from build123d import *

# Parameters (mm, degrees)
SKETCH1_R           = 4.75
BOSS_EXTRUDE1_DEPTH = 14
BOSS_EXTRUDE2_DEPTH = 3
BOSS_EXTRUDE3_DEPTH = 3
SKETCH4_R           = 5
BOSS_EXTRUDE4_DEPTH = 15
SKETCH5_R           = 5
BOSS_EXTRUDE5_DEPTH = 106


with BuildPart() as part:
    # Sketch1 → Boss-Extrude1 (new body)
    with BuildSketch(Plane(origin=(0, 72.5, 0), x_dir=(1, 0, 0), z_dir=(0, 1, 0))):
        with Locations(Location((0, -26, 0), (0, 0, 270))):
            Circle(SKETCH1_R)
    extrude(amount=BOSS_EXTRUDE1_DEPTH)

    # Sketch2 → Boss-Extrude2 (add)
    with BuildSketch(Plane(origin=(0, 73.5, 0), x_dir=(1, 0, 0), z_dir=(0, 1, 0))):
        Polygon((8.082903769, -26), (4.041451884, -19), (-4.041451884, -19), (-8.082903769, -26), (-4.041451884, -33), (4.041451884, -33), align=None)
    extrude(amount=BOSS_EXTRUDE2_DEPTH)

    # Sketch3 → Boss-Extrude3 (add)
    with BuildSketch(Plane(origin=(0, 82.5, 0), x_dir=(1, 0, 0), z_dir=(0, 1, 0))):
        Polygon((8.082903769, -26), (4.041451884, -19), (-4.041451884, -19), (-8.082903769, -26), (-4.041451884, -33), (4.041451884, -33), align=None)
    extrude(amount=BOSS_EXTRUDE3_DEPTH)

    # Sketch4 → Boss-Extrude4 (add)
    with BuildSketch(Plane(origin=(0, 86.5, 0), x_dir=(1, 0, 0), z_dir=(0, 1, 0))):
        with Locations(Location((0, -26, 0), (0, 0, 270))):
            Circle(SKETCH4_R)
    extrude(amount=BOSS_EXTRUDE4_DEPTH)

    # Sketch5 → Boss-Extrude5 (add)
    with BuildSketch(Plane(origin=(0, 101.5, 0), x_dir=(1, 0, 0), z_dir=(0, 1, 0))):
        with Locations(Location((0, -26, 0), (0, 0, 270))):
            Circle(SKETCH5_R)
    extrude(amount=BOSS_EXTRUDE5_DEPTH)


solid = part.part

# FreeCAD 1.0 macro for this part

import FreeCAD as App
import Part
import Sketcher

V = App.Vector
Q = App.Units.Quantity

doc = App.newDocument("Part")
body = doc.addObject("PartDesign::Body", "Body")

# Sketch on XZ plane
sketch1 = body.newObject("Sketcher::SketchObject", "Sketch")
sketch1.AttachmentSupport = (doc.getObject("XZ_Plane"), [""])
sketch1.MapMode = "FlatFace"
sketch1.AttachmentOffset = App.Placement(V(0, 0, -72.5), App.Rotation())
sketch1.addGeometry(Part.Circle(V(0, 26, 0), V(0, 0, 1), 4.8), False)
sketch1.addConstraint([
    Sketcher.Constraint("PointOnObject", 0, 3, -2),
    Sketcher.Constraint("Diameter", 0, 9.5),
    Sketcher.Constraint("DistanceY", -1, 1, 0, 3, 26.0),
])
pad1 = body.newObject("PartDesign::Pad", "Pad")
pad1.Profile = sketch1
pad1.Length = 14
pad1.Reversed = True

# Sketch on XZ plane
sketch2 = body.newObject("Sketcher::SketchObject", "Sketch001")
sketch2.AttachmentSupport = (doc.getObject("XZ_Plane"), [""])
sketch2.MapMode = "FlatFace"
sketch2.AttachmentOffset = App.Placement(V(0, 0, -73.5), App.Rotation())
sketch2.addGeometry([
    Part.LineSegment(V(8, 26, 0), V(4, 19, 0)),  # 0
    Part.LineSegment(V(4, 19, 0), V(-4, 19, 0)),  # 1
    Part.LineSegment(V(-4, 19, 0), V(-8, 26, 0)),  # 2
    Part.LineSegment(V(-8, 26, 0), V(-4, 33, 0)),  # 3
    Part.LineSegment(V(-4, 33, 0), V(4, 33, 0)),  # 4
    Part.LineSegment(V(4, 33, 0), V(8, 26, 0)),  # 5
], False)
sketch2.addConstraint([
    Sketcher.Constraint("Coincident", 0, 2, 1, 1),
    Sketcher.Constraint("Coincident", 1, 2, 2, 1),
    Sketcher.Constraint("Coincident", 2, 2, 3, 1),
    Sketcher.Constraint("Coincident", 3, 2, 4, 1),
    Sketcher.Constraint("Coincident", 4, 2, 5, 1),
    Sketcher.Constraint("Coincident", 5, 2, 0, 1),
    Sketcher.Constraint("Horizontal", 1),
    Sketcher.Constraint("Horizontal", 4),
    Sketcher.Constraint("Symmetric", 2, 2, 5, 2, -2),
    Sketcher.Constraint("Parallel", 0, 3),
    Sketcher.Constraint("Parallel", 2, 5),
    Sketcher.Constraint("Vertical", 1, 2, 3, 2),
    Sketcher.Constraint("Vertical", 0, 2, 4, 2),
    Sketcher.Constraint("Angle", 0, Q("-120 deg")),
    Sketcher.Constraint("DistanceY", -1, 1, 0, 2, 19.0),
    Sketcher.Constraint("DistanceY", -1, 1, 2, 2, 26.0),
    Sketcher.Constraint("DistanceX", 1, 2, 1, 1, 8.082904),
])
pad2 = body.newObject("PartDesign::Pad", "Pad001")
pad2.Profile = sketch2
pad2.Length = 3
pad2.Reversed = True

# Sketch on XZ plane
sketch3 = body.newObject("Sketcher::SketchObject", "Sketch002")
sketch3.AttachmentSupport = (doc.getObject("XZ_Plane"), [""])
sketch3.MapMode = "FlatFace"
sketch3.AttachmentOffset = App.Placement(V(0, 0, -82.5), App.Rotation())
sketch3.addGeometry([
    Part.LineSegment(V(8, 26, 0), V(4, 19, 0)),  # 0
    Part.LineSegment(V(4, 19, 0), V(-4, 19, 0)),  # 1
    Part.LineSegment(V(-4, 19, 0), V(-8, 26, 0)),  # 2
    Part.LineSegment(V(-8, 26, 0), V(-4, 33, 0)),  # 3
    Part.LineSegment(V(-4, 33, 0), V(4, 33, 0)),  # 4
    Part.LineSegment(V(4, 33, 0), V(8, 26, 0)),  # 5
], False)
sketch3.addConstraint([
    Sketcher.Constraint("Coincident", 0, 2, 1, 1),
    Sketcher.Constraint("Coincident", 1, 2, 2, 1),
    Sketcher.Constraint("Coincident", 2, 2, 3, 1),
    Sketcher.Constraint("Coincident", 3, 2, 4, 1),
    Sketcher.Constraint("Coincident", 4, 2, 5, 1),
    Sketcher.Constraint("Coincident", 5, 2, 0, 1),
    Sketcher.Constraint("Horizontal", 1),
    Sketcher.Constraint("Horizontal", 4),
    Sketcher.Constraint("Symmetric", 2, 2, 5, 2, -2),
    Sketcher.Constraint("Parallel", 0, 3),
    Sketcher.Constraint("Parallel", 2, 5),
    Sketcher.Constraint("Vertical", 1, 2, 3, 2),
    Sketcher.Constraint("Vertical", 0, 2, 4, 2),
    Sketcher.Constraint("Angle", 0, Q("-120 deg")),
    Sketcher.Constraint("DistanceY", -1, 1, 0, 2, 19.0),
    Sketcher.Constraint("DistanceY", -1, 1, 2, 2, 26.0),
    Sketcher.Constraint("DistanceX", 1, 2, 1, 1, 8.082904),
])
pad3 = body.newObject("PartDesign::Pad", "Pad002")
pad3.Profile = sketch3
pad3.Length = 3
pad3.Reversed = True

# Sketch on XZ plane
sketch4 = body.newObject("Sketcher::SketchObject", "Sketch003")
sketch4.AttachmentSupport = (doc.getObject("XZ_Plane"), [""])
sketch4.MapMode = "FlatFace"
sketch4.AttachmentOffset = App.Placement(V(0, 0, -86.5), App.Rotation())
sketch4.addGeometry(Part.Circle(V(0, 26, 0), V(0, 0, 1), 5), False)
sketch4.addConstraint([
    Sketcher.Constraint("PointOnObject", 0, 3, -2),
    Sketcher.Constraint("Diameter", 0, 10.0),
    Sketcher.Constraint("DistanceY", -1, 1, 0, 3, 26.0),
])
pad4 = body.newObject("PartDesign::Pad", "Pad003")
pad4.Profile = sketch4
pad4.Length = 15
pad4.Reversed = True

# Sketch on XZ plane
sketch5 = body.newObject("Sketcher::SketchObject", "Sketch004")
sketch5.AttachmentSupport = (doc.getObject("XZ_Plane"), [""])
sketch5.MapMode = "FlatFace"
sketch5.AttachmentOffset = App.Placement(V(0, 0, -101.5), App.Rotation())
sketch5.addGeometry(Part.Circle(V(0, 26, 0), V(0, 0, 1), 5), False)
sketch5.addConstraint([
    Sketcher.Constraint("PointOnObject", 0, 3, -2),
    Sketcher.Constraint("Diameter", 0, 10.0),
    Sketcher.Constraint("DistanceY", -1, 1, 0, 3, 26.0),
])
pad5 = body.newObject("PartDesign::Pad", "Pad004")
pad5.Profile = sketch5
pad5.Length = 106
pad5.Reversed = True

doc.recompute()
